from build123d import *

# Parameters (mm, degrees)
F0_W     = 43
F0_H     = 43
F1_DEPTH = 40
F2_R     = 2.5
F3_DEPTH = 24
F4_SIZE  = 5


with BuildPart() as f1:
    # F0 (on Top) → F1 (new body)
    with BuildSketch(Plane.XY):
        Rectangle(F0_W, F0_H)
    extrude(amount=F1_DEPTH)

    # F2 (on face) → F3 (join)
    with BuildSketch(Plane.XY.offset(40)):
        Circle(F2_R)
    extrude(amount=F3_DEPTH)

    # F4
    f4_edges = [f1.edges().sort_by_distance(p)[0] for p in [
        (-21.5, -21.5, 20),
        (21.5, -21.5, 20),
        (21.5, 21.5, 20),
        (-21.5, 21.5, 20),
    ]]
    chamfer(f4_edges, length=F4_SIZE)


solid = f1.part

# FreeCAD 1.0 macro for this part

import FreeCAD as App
import Part
import Sketcher
Q = App.Units.Quantity


def edges_at(feature, points):
    """Names of the edges that pass closest to the given points."""
    edges = feature.Shape.Edges
    near = lambda p: min(range(len(edges)), key=lambda i: edges[i].distToShape(Part.Vertex(*p))[0])
    return sorted({f"Edge{near(p) + 1}" for p in points})

doc = App.newDocument("Part")
params = doc.addObject("Spreadsheet::Sheet", "Params")
for row, (alias, value) in enumerate([
    ("sketch1_width", "43 mm"),
    ("pad1_length", "40 mm"),
    ("sketch2_diameter", "5 mm"),
    ("pad2_length", "24 mm"),
    ("chamfer_size", "5 mm"),
], start=1):
    params.set(f"A{row}", alias)
    params.set(f"B{row}", "=" + value)
    params.setAlias(f"B{row}", alias)

body = doc.addObject("PartDesign::Body", "Body")

# Sketch on XY plane
sketch1 = doc.addObject("Sketcher::SketchObject", "Sketch")
body.addObject(sketch1)
sketch1.AttachmentSupport = (doc.XY_Plane, [""])
sketch1.MapMode = "FlatFace"
sketch1.addGeometry(Part.LineSegment(App.Vector(-21.5, 21.5, 0), App.Vector(-21.5, -21.5, 0)), False)
sketch1.addGeometry(Part.LineSegment(App.Vector(-21.5, -21.5, 0), App.Vector(21.5, -21.5, 0)), False)
sketch1.addGeometry(Part.LineSegment(App.Vector(21.5, -21.5, 0), App.Vector(21.5, 21.5, 0)), False)
sketch1.addGeometry(Part.LineSegment(App.Vector(21.5, 21.5, 0), App.Vector(-21.5, 21.5, 0)), False)
sketch1.addConstraint(Sketcher.Constraint("Coincident", 0, 2, 1, 1))
sketch1.addConstraint(Sketcher.Constraint("Coincident", 1, 2, 2, 1))
sketch1.addConstraint(Sketcher.Constraint("Coincident", 2, 2, 3, 1))
sketch1.addConstraint(Sketcher.Constraint("Coincident", 3, 2, 0, 1))
sketch1.addConstraint(Sketcher.Constraint("Vertical", 0))
sketch1.addConstraint(Sketcher.Constraint("Horizontal", 1))
sketch1.addConstraint(Sketcher.Constraint("Vertical", 2))
sketch1.addConstraint(Sketcher.Constraint("Horizontal", 3))
sketch1.addConstraint(Sketcher.Constraint("Symmetric", 0, 2, 2, 2, -1, 1))
sketch1.addConstraint(Sketcher.Constraint("Equal", 3, 0))
sketch1.addConstraint(Sketcher.Constraint("DistanceX", 1, 1, 1, 2, Q("43 mm")))
sketch1.setExpression("Constraints[10]", "Params.sketch1_width")
pad1 = doc.addObject("PartDesign::Pad", "Pad")
body.addObject(pad1)
pad1.Profile = sketch1
pad1.setExpression("Length", "Params.pad1_length")

# Sketch on XY plane
sketch2 = doc.addObject("Sketcher::SketchObject", "Sketch001")
body.addObject(sketch2)
sketch2.AttachmentSupport = (doc.XY_Plane, [""])
sketch2.MapMode = "FlatFace"
sketch2.AttachmentOffset = App.Placement(App.Vector(0, 0, 40), App.Rotation())
sketch2.addGeometry(Part.Circle(App.Vector(0, 0, 0), App.Vector(0, 0, 1), 2.5), False)
sketch2.addConstraint(Sketcher.Constraint("Coincident", 0, 3, -1, 1))
sketch2.addConstraint(Sketcher.Constraint("Diameter", 0, Q("5 mm")))
sketch2.setExpression("Constraints[1]", "Params.sketch2_diameter")
pad2 = doc.addObject("PartDesign::Pad", "Pad001")
body.addObject(pad2)
pad2.Profile = sketch2
pad2.setExpression("Length", "Params.pad2_length")
doc.recompute()

chamfer = doc.addObject("PartDesign::Chamfer", "Chamfer")
body.addObject(chamfer)
chamfer.Base = (pad2, edges_at(pad2, [
    (-21.5, -21.5, 20),
    (21.5, -21.5, 20),
    (21.5, 21.5, 20),
    (-21.5, 21.5, 20),
]))
chamfer.setExpression("Size", "Params.chamfer_size")

doc.recompute()
